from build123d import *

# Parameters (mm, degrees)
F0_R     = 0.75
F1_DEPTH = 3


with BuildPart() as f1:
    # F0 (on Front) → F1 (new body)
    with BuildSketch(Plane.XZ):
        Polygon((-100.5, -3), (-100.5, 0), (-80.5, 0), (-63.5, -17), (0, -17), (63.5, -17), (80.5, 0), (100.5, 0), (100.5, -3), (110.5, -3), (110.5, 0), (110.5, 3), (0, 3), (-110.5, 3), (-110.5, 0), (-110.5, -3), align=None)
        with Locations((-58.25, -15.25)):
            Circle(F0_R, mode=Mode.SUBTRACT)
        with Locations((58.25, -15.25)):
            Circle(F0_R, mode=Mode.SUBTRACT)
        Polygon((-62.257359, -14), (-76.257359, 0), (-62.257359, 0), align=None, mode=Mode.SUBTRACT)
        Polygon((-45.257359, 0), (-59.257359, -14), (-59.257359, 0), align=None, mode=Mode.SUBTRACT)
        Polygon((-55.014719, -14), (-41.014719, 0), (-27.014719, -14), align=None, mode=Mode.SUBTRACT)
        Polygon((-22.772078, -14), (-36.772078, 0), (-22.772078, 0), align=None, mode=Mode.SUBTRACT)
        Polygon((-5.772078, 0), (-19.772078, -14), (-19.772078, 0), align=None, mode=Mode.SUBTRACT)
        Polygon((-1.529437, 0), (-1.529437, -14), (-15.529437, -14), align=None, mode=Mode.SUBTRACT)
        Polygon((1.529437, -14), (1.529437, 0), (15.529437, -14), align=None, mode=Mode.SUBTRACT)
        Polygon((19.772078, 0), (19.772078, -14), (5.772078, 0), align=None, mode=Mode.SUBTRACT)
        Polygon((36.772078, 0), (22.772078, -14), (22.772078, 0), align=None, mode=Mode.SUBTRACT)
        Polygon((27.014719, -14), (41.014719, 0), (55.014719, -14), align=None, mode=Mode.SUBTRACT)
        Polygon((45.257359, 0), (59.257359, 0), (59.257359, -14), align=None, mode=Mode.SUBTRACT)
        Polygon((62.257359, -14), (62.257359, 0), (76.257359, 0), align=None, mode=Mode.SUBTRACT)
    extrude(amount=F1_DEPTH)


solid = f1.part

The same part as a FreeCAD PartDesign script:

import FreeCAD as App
import Part
import Sketcher
Q = App.Units.Quantity

doc = App.newDocument("Part")
body = doc.addObject("PartDesign::Body", "Body")

# Sketch on XZ plane
sketch1 = body.newObject("Sketcher::SketchObject", "Sketch")
sketch1.AttachmentSupport = (doc.getObject("XZ_Plane"), [""])
sketch1.MapMode = "FlatFace"
sketch1.addGeometry(Part.LineSegment(App.Vector(-100.5, -3, 0), App.Vector(-100.5, 0, 0)), False)
sketch1.addGeometry(Part.LineSegment(App.Vector(-100.5, 0, 0), App.Vector(-80.5, 0, 0)), False)
sketch1.addGeometry(Part.LineSegment(App.Vector(-80.5, 0, 0), App.Vector(-63.5, -17, 0)), False)
sketch1.addGeometry(Part.LineSegment(App.Vector(-63.5, -17, 0), App.Vector(63.5, -17, 0)), False)
sketch1.addGeometry(Part.LineSegment(App.Vector(63.5, -17, 0), App.Vector(80.5, 0, 0)), False)
sketch1.addGeometry(Part.LineSegment(App.Vector(80.5, 0, 0), App.Vector(100.5, 0, 0)), False)
sketch1.addGeometry(Part.LineSegment(App.Vector(100.5, 0, 0), App.Vector(100.5, -3, 0)), False)
sketch1.addGeometry(Part.LineSegment(App.Vector(100.5, -3, 0), App.Vector(110.5, -3, 0)), False)
sketch1.addGeometry(Part.LineSegment(App.Vector(110.5, -3, 0), App.Vector(110.5, 3, 0)), False)
sketch1.addGeometry(Part.LineSegment(App.Vector(110.5, 3, 0), App.Vector(-110.5, 3, 0)), False)
sketch1.addGeometry(Part.LineSegment(App.Vector(-110.5, 3, 0), App.Vector(-110.5, -3, 0)), False)
sketch1.addGeometry(Part.LineSegment(App.Vector(-110.5, -3, 0), App.Vector(-100.5, -3, 0)), False)
sketch1.addGeometry(Part.Circle(App.Vector(-58.2, -15.2, 0), App.Vector(0, 0, 1), 0.8), False)
sketch1.addGeometry(Part.Circle(App.Vector(58.2, -15.2, 0), App.Vector(0, 0, 1), 0.8), False)
sketch1.addGeometry(Part.LineSegment(App.Vector(-62.3, 0, 0), App.Vector(-62.3, -14, 0)), False)
sketch1.addGeometry(Part.LineSegment(App.Vector(-62.3, -14, 0), App.Vector(-76.3, 0, 0)), False)
sketch1.addGeometry(Part.LineSegment(App.Vector(-76.3, 0, 0), App.Vector(-62.3, 0, 0)), False)
sketch1.addGeometry(Part.LineSegment(App.Vector(-59.3, 0, 0), App.Vector(-45.3, 0, 0)), False)
sketch1.addGeometry(Part.LineSegment(App.Vector(-45.3, 0, 0), App.Vector(-59.3, -14, 0)), False)
sketch1.addGeometry(Part.LineSegment(App.Vector(-59.3, -14, 0), App.Vector(-59.3, 0, 0)), False)
sketch1.addGeometry(Part.LineSegment(App.Vector(-27, -14, 0), App.Vector(-55, -14, 0)), False)
sketch1.addGeometry(Part.LineSegment(App.Vector(-55, -14, 0), App.Vector(-41, 0, 0)), False)
sketch1.addGeometry(Part.LineSegment(App.Vector(-41, 0, 0), App.Vector(-27, -14, 0)), False)
sketch1.addGeometry(Part.LineSegment(App.Vector(-22.8, 0, 0), App.Vector(-22.8, -14, 0)), False)
sketch1.addGeometry(Part.LineSegment(App.Vector(-22.8, -14, 0), App.Vector(-36.8, 0, 0)), False)
sketch1.addGeometry(Part.LineSegment(App.Vector(-36.8, 0, 0), App.Vector(-22.8, 0, 0)), False)
sketch1.addGeometry(Part.LineSegment(App.Vector(-19.8, 0, 0), App.Vector(-5.8, 0, 0)), False)
sketch1.addGeometry(Part.LineSegment(App.Vector(-5.8, 0, 0), App.Vector(-19.8, -14, 0)), False)
sketch1.addGeometry(Part.LineSegment(App.Vector(-19.8, -14, 0), App.Vector(-19.8, 0, 0)), False)
sketch1.addGeometry(Part.LineSegment(App.Vector(-15.5, -14, 0), App.Vector(-1.5, 0, 0)), False)
sketch1.addGeometry(Part.LineSegment(App.Vector(-1.5, 0, 0), App.Vector(-1.5, -14, 0)), False)
sketch1.addGeometry(Part.LineSegment(App.Vector(-1.5, -14, 0), App.Vector(-15.5, -14, 0)), False)
sketch1.addGeometry(Part.LineSegment(App.Vector(15.5, -14, 0), App.Vector(1.5, -14, 0)), False)
sketch1.addGeometry(Part.LineSegment(App.Vector(1.5, -14, 0), App.Vector(1.5, 0, 0)), False)
sketch1.addGeometry(Part.LineSegment(App.Vector(1.5, 0, 0), App.Vector(15.5, -14, 0)), False)
sketch1.addGeometry(Part.LineSegment(App.Vector(5.8, 0, 0), App.Vector(19.8, 0, 0)), False)
sketch1.addGeometry(Part.LineSegment(App.Vector(19.8, 0, 0), App.Vector(19.8, -14, 0)), False)
sketch1.addGeometry(Part.LineSegment(App.Vector(19.8, -14, 0), App.Vector(5.8, 0, 0)), False)
sketch1.addGeometry(Part.LineSegment(App.Vector(22.8, 0, 0), App.Vector(36.8, 0, 0)), False)
sketch1.addGeometry(Part.LineSegment(App.Vector(36.8, 0, 0), App.Vector(22.8, -14, 0)), False)
sketch1.addGeometry(Part.LineSegment(App.Vector(22.8, -14, 0), App.Vector(22.8, 0, 0)), False)
sketch1.addGeometry(Part.LineSegment(App.Vector(55, -14, 0), App.Vector(27, -14, 0)), False)
sketch1.addGeometry(Part.LineSegment(App.Vector(27, -14, 0), App.Vector(41, 0, 0)), False)
sketch1.addGeometry(Part.LineSegment(App.Vector(41, 0, 0), App.Vector(55, -14, 0)), False)
sketch1.addGeometry(Part.LineSegment(App.Vector(59.3, -14, 0), App.Vector(45.3, 0, 0)), False)
sketch1.addGeometry(Part.LineSegment(App.Vector(45.3, 0, 0), App.Vector(59.3, 0, 0)), False)
sketch1.addGeometry(Part.LineSegment(App.Vector(59.3, 0, 0), App.Vector(59.3, -14, 0)), False)
sketch1.addGeometry(Part.LineSegment(App.Vector(76.3, 0, 0), App.Vector(62.3, -14, 0)), False)
sketch1.addGeometry(Part.LineSegment(App.Vector(62.3, -14, 0), App.Vector(62.3, 0, 0)), False)
sketch1.addGeometry(Part.LineSegment(App.Vector(62.3, 0, 0), App.Vector(76.3, 0, 0)), False)
sketch1.addConstraint(Sketcher.Constraint("Coincident", 0, 2, 1, 1))
sketch1.addConstraint(Sketcher.Constraint("Coincident", 1, 2, 2, 1))
sketch1.addConstraint(Sketcher.Constraint("Coincident", 2, 2, 3, 1))
sketch1.addConstraint(Sketcher.Constraint("Coincident", 3, 2, 4, 1))
sketch1.addConstraint(Sketcher.Constraint("Coincident", 4, 2, 5, 1))
sketch1.addConstraint(Sketcher.Constraint("Coincident", 5, 2, 6, 1))
sketch1.addConstraint(Sketcher.Constraint("Coincident", 6, 2, 7, 1))
sketch1.addConstraint(Sketcher.Constraint("Coincident", 7, 2, 8, 1))
sketch1.addConstraint(Sketcher.Constraint("Coincident", 8, 2, 9, 1))
sketch1.addConstraint(Sketcher.Constraint("Coincident", 9, 2, 10, 1))
sketch1.addConstraint(Sketcher.Constraint("Coincident", 10, 2, 11, 1))
sketch1.addConstraint(Sketcher.Constraint("Coincident", 11, 2, 0, 1))
sketch1.addConstraint(Sketcher.Constraint("Coincident", 14, 2, 15, 1))
sketch1.addConstraint(Sketcher.Constraint("Coincident", 15, 2, 16, 1))
sketch1.addConstraint(Sketcher.Constraint("Coincident", 16, 2, 14, 1))
sketch1.addConstraint(Sketcher.Constraint("Coincident", 17, 2, 18, 1))
sketch1.addConstraint(Sketcher.Constraint("Coincident", 18, 2, 19, 1))
sketch1.addConstraint(Sketcher.Constraint("Coincident", 19, 2, 17, 1))
sketch1.addConstraint(Sketcher.Constraint("Coincident", 20, 2, 21, 1))
sketch1.addConstraint(Sketcher.Constraint("Coincident", 21, 2, 22, 1))
sketch1.addConstraint(Sketcher.Constraint("Coincident", 22, 2, 20, 1))
sketch1.addConstraint(Sketcher.Constraint("Coincident", 23, 2, 24, 1))
sketch1.addConstraint(Sketcher.Constraint("Coincident", 24, 2, 25, 1))
sketch1.addConstraint(Sketcher.Constraint("Coincident", 25, 2, 23, 1))
sketch1.addConstraint(Sketcher.Constraint("Coincident", 26, 2, 27, 1))
sketch1.addConstraint(Sketcher.Constraint("Coincident", 27, 2, 28, 1))
sketch1.addConstraint(Sketcher.Constraint("Coincident", 28, 2, 26, 1))
sketch1.addConstraint(Sketcher.Constraint("Coincident", 29, 2, 30, 1))
sketch1.addConstraint(Sketcher.Constraint("Coincident", 30, 2, 31, 1))
sketch1.addConstraint(Sketcher.Constraint("Coincident", 31, 2, 29, 1))
sketch1.addConstraint(Sketcher.Constraint("Coincident", 32, 2, 33, 1))
sketch1.addConstraint(Sketcher.Constraint("Coincident", 33, 2, 34, 1))
sketch1.addConstraint(Sketcher.Constraint("Coincident", 34, 2, 32, 1))
sketch1.addConstraint(Sketcher.Constraint("Coincident", 35, 2, 36, 1))
sketch1.addConstraint(Sketcher.Constraint("Coincident", 36, 2, 37, 1))
sketch1.addConstraint(Sketcher.Constraint("Coincident", 37, 2, 35, 1))
sketch1.addConstraint(Sketcher.Constraint("Coincident", 38, 2, 39, 1))
sketch1.addConstraint(Sketcher.Constraint("Coincident", 39, 2, 40, 1))
sketch1.addConstraint(Sketcher.Constraint("Coincident", 40, 2, 38, 1))
sketch1.addConstraint(Sketcher.Constraint("Coincident", 41, 2, 42, 1))
sketch1.addConstraint(Sketcher.Constraint("Coincident", 42, 2, 43, 1))
sketch1.addConstraint(Sketcher.Constraint("Coincident", 43, 2, 41, 1))
sketch1.addConstraint(Sketcher.Constraint("Coincident", 44, 2, 45, 1))
sketch1.addConstraint(Sketcher.Constraint("Coincident", 45, 2, 46, 1))
sketch1.addConstraint(Sketcher.Constraint("Coincident", 46, 2, 44, 1))
sketch1.addConstraint(Sketcher.Constraint("Coincident", 47, 2, 48, 1))
sketch1.addConstraint(Sketcher.Constraint("Coincident", 48, 2, 49, 1))
sketch1.addConstraint(Sketcher.Constraint("Coincident", 49, 2, 47, 1))
sketch1.addConstraint(Sketcher.Constraint("Vertical", 0))
sketch1.addConstraint(Sketcher.Constraint("Horizontal", 1))
sketch1.addConstraint(Sketcher.Constraint("Horizontal", 3))
sketch1.addConstraint(Sketcher.Constraint("Horizontal", 5))
sketch1.addConstraint(Sketcher.Constraint("Vertical", 6))
sketch1.addConstraint(Sketcher.Constraint("Horizontal", 7))
sketch1.addConstraint(Sketcher.Constraint("Vertical", 8))
sketch1.addConstraint(Sketcher.Constraint("Horizontal", 9))
sketch1.addConstraint(Sketcher.Constraint("Vertical", 10))
sketch1.addConstraint(Sketcher.Constraint("Horizontal", 11))
sketch1.addConstraint(Sketcher.Constraint("Vertical", 14))
sketch1.addConstraint(Sketcher.Constraint("Horizontal", 16))
sketch1.addConstraint(Sketcher.Constraint("Horizontal", 17))
sketch1.addConstraint(Sketcher.Constraint("Vertical", 19))
sketch1.addConstraint(Sketcher.Constraint("Horizontal", 20))
sketch1.addConstraint(Sketcher.Constraint("Vertical", 23))
sketch1.addConstraint(Sketcher.Constraint("Horizontal", 25))
sketch1.addConstraint(Sketcher.Constraint("Horizontal", 26))
sketch1.addConstraint(Sketcher.Constraint("Vertical", 28))
sketch1.addConstraint(Sketcher.Constraint("Vertical", 30))
sketch1.addConstraint(Sketcher.Constraint("Horizontal", 31))
sketch1.addConstraint(Sketcher.Constraint("Horizontal", 32))
sketch1.addConstraint(Sketcher.Constraint("Vertical", 33))
sketch1.addConstraint(Sketcher.Constraint("Horizontal", 35))
sketch1.addConstraint(Sketcher.Constraint("Vertical", 36))
sketch1.addConstraint(Sketcher.Constraint("Horizontal", 38))
sketch1.addConstraint(Sketcher.Constraint("Vertical", 40))
sketch1.addConstraint(Sketcher.Constraint("Horizontal", 41))
sketch1.addConstraint(Sketcher.Constraint("Horizontal", 45))
sketch1.addConstraint(Sketcher.Constraint("Vertical", 46))
sketch1.addConstraint(Sketcher.Constraint("Vertical", 48))
sketch1.addConstraint(Sketcher.Constraint("Horizontal", 49))
sketch1.addConstraint(Sketcher.Constraint("Equal", 12, 13))
sketch1.addConstraint(Sketcher.Constraint("Symmetric", 1, 2, 4, 2, -1, 1))
sketch1.addConstraint(Sketcher.Constraint("Symmetric", 7, 2, 9, 2, -1, 1))
sketch1.addConstraint(Sketcher.Constraint("Symmetric", 29, 2, 33, 2, -1, 1))
sketch1.addConstraint(Sketcher.Constraint("Symmetric", 28, 2, 35, 2, -1, 1))
sketch1.addConstraint(Sketcher.Constraint("Symmetric", 24, 2, 38, 2, -1, 1))
sketch1.addConstraint(Sketcher.Constraint("Symmetric", 21, 2, 42, 2, -1, 1))
sketch1.addConstraint(Sketcher.Constraint("Symmetric", 17, 2, 44, 2, -1, 1))
sketch1.addConstraint(Sketcher.Constraint("Symmetric", 16, 2, 48, 2, -1, 1))
sketch1.addConstraint(Sketcher.Constraint("Symmetric", 12, 3, 13, 3, -2))
sketch1.addConstraint(Sketcher.Constraint("Symmetric", 0, 2, 5, 2, -2))
sketch1.addConstraint(Sketcher.Constraint("Symmetric", 31, 2, 34, 2, -2))
sketch1.addConstraint(Sketcher.Constraint("Symmetric", 26, 2, 37, 2, -2))
sketch1.addConstraint(Sketcher.Constraint("Symmetric", 23, 2, 39, 2, -2))
sketch1.addConstraint(Sketcher.Constraint("Symmetric", 22, 2, 41, 2, -2))
sketch1.addConstraint(Sketcher.Constraint("Symmetric", 19, 2, 45, 2, -2))
sketch1.addConstraint(Sketcher.Constraint("Symmetric", 15, 2, 49, 2, -2))
sketch1.addConstraint(Sketcher.Constraint("PointOnObject", 21, 2, -1))
sketch1.addConstraint(Sketcher.Constraint("PointOnObject", 24, 2, -1))
sketch1.addConstraint(Sketcher.Constraint("PointOnObject", 29, 2, -1))
sketch1.addConstraint(Sketcher.Constraint("Perpendicular", 2, 4))
sketch1.addConstraint(Sketcher.Constraint("Perpendicular", 4, 15))
sketch1.addConstraint(Sketcher.Constraint("Perpendicular", 15, 18))
sketch1.addConstraint(Sketcher.Constraint("Parallel", 18, 21))
sketch1.addConstraint(Sketcher.Constraint("Perpendicular", 21, 22))
sketch1.addConstraint(Sketcher.Constraint("Parallel", 22, 24))
sketch1.addConstraint(Sketcher.Constraint("Perpendicular", 24, 27))
sketch1.addConstraint(Sketcher.Constraint("Parallel", 27, 29))
sketch1.addConstraint(Sketcher.Constraint("Perpendicular", 29, 34))
sketch1.addConstraint(Sketcher.Constraint("Parallel", 34, 37))
sketch1.addConstraint(Sketcher.Constraint("Perpendicular", 42, 43))
sketch1.addConstraint(Sketcher.Constraint("Parallel", 43, 44))
sketch1.addConstraint(Sketcher.Constraint("Perpendicular", 44, 47))
sketch1.addConstraint(Sketcher.Constraint("Horizontal", 7, 2, 10, 2))
sketch1.addConstraint(Sketcher.Constraint("Horizontal", 14, 2, 18, 2))
sketch1.addConstraint(Sketcher.Constraint("Horizontal", 18, 2, 20, 2))
sketch1.addConstraint(Sketcher.Constraint("Horizontal", 22, 2, 23, 2))
sketch1.addConstraint(Sketcher.Constraint("Horizontal", 23, 2, 27, 2))
sketch1.addConstraint(Sketcher.Constraint("Horizontal", 27, 2, 30, 2))
sketch1.addConstraint(Sketcher.Constraint("Diameter", 12, Q("1.5 mm")))
sketch1.addConstraint(Sketcher.Constraint("DistanceX", 1, 1, 1, 2, Q("20 mm")))
sketch1.addConstraint(Sketcher.Constraint("DistanceX", 3, 1, 3, 2, Q("127 mm")))
sketch1.addConstraint(Sketcher.Constraint("DistanceX", 7, 1, 7, 2, Q("10 mm")))
sketch1.addConstraint(Sketcher.Constraint("DistanceX", 9, 2, 9, 1, Q("221 mm")))
sketch1.addConstraint(Sketcher.Constraint("DistanceX", 16, 1, 16, 2, Q("14 mm")))
sketch1.addConstraint(Sketcher.Constraint("DistanceY", 0, 1, 0, 2, Q("3 mm")))
sketch1.addConstraint(Sketcher.Constraint("DistanceX", 16, 2, 17, 2, Q("17 mm")))
sketch1.addConstraint(Sketcher.Constraint("DistanceX", 25, 2, 26, 2, Q("17 mm")))
sketch1.addConstraint(Sketcher.Constraint("DistanceX", 12, 3, 13, 3, Q("116.5 mm")))
sketch1.addConstraint(Sketcher.Constraint("DistanceY", 12, 3, -1, 1, Q("15.25 mm")))
sketch1.addConstraint(Sketcher.Constraint("DistanceX", 14, 2, -1, 1, Q("62.257359 mm")))
sketch1.addConstraint(Sketcher.Constraint("DistanceX", 20, 2, -1, 1, Q("55.014719 mm")))
sketch1.addConstraint(Sketcher.Constraint("DistanceX", 23, 2, -1, 1, Q("22.772078 mm")))
sketch1.addConstraint(Sketcher.Constraint("DistanceX", 26, 2, 29, 2, Q("4.242641 mm")))
pad1 = body.newObject("PartDesign::Pad", "Pad")
pad1.Profile = sketch1
pad1.Length = 3

doc.recompute()
